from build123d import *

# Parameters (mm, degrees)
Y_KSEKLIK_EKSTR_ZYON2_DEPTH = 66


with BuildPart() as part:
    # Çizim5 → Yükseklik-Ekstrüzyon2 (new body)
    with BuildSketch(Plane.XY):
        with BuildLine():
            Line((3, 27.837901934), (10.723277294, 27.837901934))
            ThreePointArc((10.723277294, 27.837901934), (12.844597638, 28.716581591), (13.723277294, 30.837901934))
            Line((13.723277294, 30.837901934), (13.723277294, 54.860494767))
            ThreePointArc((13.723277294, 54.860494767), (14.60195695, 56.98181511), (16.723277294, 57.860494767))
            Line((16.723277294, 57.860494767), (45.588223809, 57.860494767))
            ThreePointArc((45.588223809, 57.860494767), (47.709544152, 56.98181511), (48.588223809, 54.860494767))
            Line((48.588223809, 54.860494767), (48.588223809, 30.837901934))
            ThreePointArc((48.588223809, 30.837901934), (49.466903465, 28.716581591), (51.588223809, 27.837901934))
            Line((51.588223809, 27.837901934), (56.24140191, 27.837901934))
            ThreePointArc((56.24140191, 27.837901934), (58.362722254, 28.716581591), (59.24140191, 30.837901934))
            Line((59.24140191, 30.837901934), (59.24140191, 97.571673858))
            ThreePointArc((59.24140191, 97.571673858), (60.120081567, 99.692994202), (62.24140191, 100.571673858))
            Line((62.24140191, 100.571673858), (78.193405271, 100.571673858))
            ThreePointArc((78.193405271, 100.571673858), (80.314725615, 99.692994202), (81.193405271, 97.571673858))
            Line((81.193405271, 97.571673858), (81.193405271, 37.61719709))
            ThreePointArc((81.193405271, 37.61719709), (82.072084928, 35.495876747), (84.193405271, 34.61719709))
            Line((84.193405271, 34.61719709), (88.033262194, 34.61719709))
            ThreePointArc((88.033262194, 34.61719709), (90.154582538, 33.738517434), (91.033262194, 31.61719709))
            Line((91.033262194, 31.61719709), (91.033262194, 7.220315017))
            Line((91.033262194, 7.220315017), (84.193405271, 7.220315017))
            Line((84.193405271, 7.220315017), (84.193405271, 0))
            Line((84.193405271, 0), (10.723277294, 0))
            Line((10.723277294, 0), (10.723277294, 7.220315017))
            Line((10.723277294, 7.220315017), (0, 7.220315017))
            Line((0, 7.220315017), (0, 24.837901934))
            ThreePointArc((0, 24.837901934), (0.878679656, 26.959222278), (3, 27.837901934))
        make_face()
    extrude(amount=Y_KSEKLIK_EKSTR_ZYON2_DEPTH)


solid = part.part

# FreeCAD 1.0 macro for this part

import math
import FreeCAD as App
import Part
import Sketcher

doc = App.newDocument("Part")
body = doc.addObject("PartDesign::Body", "Body")

# Sketch on XY plane
sketch1 = doc.addObject("Sketcher::SketchObject", "Sketch")
body.addObject(sketch1)
sketch1.AttachmentSupport = (doc.XY_Plane, [""])
sketch1.MapMode = "FlatFace"
sketch1.addGeometry([
    Part.LineSegment(App.Vector(10.723277, 27.837902, 0), App.Vector(3, 27.837902, 0)),  # 0
    Part.ArcOfCircle(Part.Circle(App.Vector(3, 24.837902, 0), App.Vector(0, 0, 1), 3), math.radians(90), math.radians(180)),  # 1
    Part.LineSegment(App.Vector(0, 24.837902, 0), App.Vector(0, 7.220315, 0)),  # 2
    Part.LineSegment(App.Vector(0, 7.220315, 0), App.Vector(10.723277, 7.220315, 0)),  # 3
    Part.LineSegment(App.Vector(10.723277, 7.220315, 0), App.Vector(10.723277, 0, 0)),  # 4
    Part.LineSegment(App.Vector(10.723277, 0, 0), App.Vector(84.193405, 0, 0)),  # 5
    Part.LineSegment(App.Vector(84.193405, 0, 0), App.Vector(84.193405, 7.220315, 0)),  # 6
    Part.LineSegment(App.Vector(84.193405, 7.220315, 0), App.Vector(91.033262, 7.220315, 0)),  # 7
    Part.LineSegment(App.Vector(91.033262, 7.220315, 0), App.Vector(91.033262, 31.617197, 0)),  # 8
    Part.ArcOfCircle(Part.Circle(App.Vector(88.033262, 31.617197, 0), App.Vector(0, 0, 1), 3), math.radians(0), math.radians(90)),  # 9
    Part.LineSegment(App.Vector(88.033262, 34.617197, 0), App.Vector(84.193405, 34.617197, 0)),  # 10
    Part.ArcOfCircle(Part.Circle(App.Vector(84.193405, 37.617197, 0), App.Vector(0, 0, 1), 3), math.radians(-180), math.radians(-90)),  # 11
    Part.LineSegment(App.Vector(81.193405, 37.617197, 0), App.Vector(81.193405, 97.571674, 0)),  # 12
    Part.ArcOfCircle(Part.Circle(App.Vector(78.193405, 97.571674, 0), App.Vector(0, 0, 1), 3), math.radians(0), math.radians(90)),  # 13
    Part.LineSegment(App.Vector(78.193405, 100.571674, 0), App.Vector(62.241402, 100.571674, 0)),  # 14
    Part.ArcOfCircle(Part.Circle(App.Vector(62.241402, 97.571674, 0), App.Vector(0, 0, 1), 3), math.radians(90), math.radians(180)),  # 15
    Part.LineSegment(App.Vector(59.241402, 97.571674, 0), App.Vector(59.241402, 30.837902, 0)),  # 16
    Part.ArcOfCircle(Part.Circle(App.Vector(56.241402, 30.837902, 0), App.Vector(0, 0, 1), 3), math.radians(-90), math.radians(0)),  # 17
    Part.LineSegment(App.Vector(56.241402, 27.837902, 0), App.Vector(51.588224, 27.837902, 0)),  # 18
    Part.ArcOfCircle(Part.Circle(App.Vector(51.588224, 30.837902, 0), App.Vector(0, 0, 1), 3), math.radians(180), math.radians(270)),  # 19
    Part.LineSegment(App.Vector(48.588224, 30.837902, 0), App.Vector(48.588224, 54.860495, 0)),  # 20
    Part.ArcOfCircle(Part.Circle(App.Vector(45.588224, 54.860495, 0), App.Vector(0, 0, 1), 3), math.radians(0), math.radians(90)),  # 21
    Part.LineSegment(App.Vector(45.588224, 57.860495, 0), App.Vector(16.723277, 57.860495, 0)),  # 22
    Part.ArcOfCircle(Part.Circle(App.Vector(16.723277, 54.860495, 0), App.Vector(0, 0, 1), 3), math.radians(90), math.radians(180)),  # 23
    Part.LineSegment(App.Vector(13.723277, 54.860495, 0), App.Vector(13.723277, 30.837902, 0)),  # 24
    Part.ArcOfCircle(Part.Circle(App.Vector(10.723277, 30.837902, 0), App.Vector(0, 0, 1), 3), math.radians(-90), math.radians(0)),  # 25
], False)
sketch1.addConstraint([
    Sketcher.Constraint("Tangent", 0, 2, 1, 1),
    Sketcher.Constraint("Tangent", 1, 2, 2, 1),
    Sketcher.Constraint("Coincident", 2, 2, 3, 1),
    Sketcher.Constraint("Coincident", 3, 2, 4, 1),
    Sketcher.Constraint("Coincident", 4, 2, 5, 1),
    Sketcher.Constraint("Coincident", 5, 2, 6, 1),
    Sketcher.Constraint("Coincident", 6, 2, 7, 1),
    Sketcher.Constraint("Coincident", 7, 2, 8, 1),
    Sketcher.Constraint("Tangent", 8, 2, 9, 1),
    Sketcher.Constraint("Tangent", 9, 2, 10, 1),
    Sketcher.Constraint("Tangent", 10, 2, 11, 2),
    Sketcher.Constraint("Tangent", 11, 1, 12, 1),
    Sketcher.Constraint("Tangent", 12, 2, 13, 1),
    Sketcher.Constraint("Tangent", 13, 2, 14, 1),
    Sketcher.Constraint("Tangent", 14, 2, 15, 1),
    Sketcher.Constraint("Tangent", 15, 2, 16, 1),
    Sketcher.Constraint("Tangent", 16, 2, 17, 2),
    Sketcher.Constraint("Tangent", 17, 1, 18, 1),
    Sketcher.Constraint("Tangent", 18, 2, 19, 2),
    Sketcher.Constraint("Tangent", 19, 1, 20, 1),
    Sketcher.Constraint("Tangent", 20, 2, 21, 1),
    Sketcher.Constraint("Tangent", 21, 2, 22, 1),
    Sketcher.Constraint("Tangent", 22, 2, 23, 1),
    Sketcher.Constraint("Tangent", 23, 2, 24, 1),
    Sketcher.Constraint("Tangent", 24, 2, 25, 2),
    Sketcher.Constraint("Tangent", 25, 1, 0, 1),
    Sketcher.Constraint("Horizontal", 0),
    Sketcher.Constraint("Vertical", 2),
    Sketcher.Constraint("Horizontal", 3),
    Sketcher.Constraint("Vertical", 4),
    Sketcher.Constraint("Horizontal", 5),
    Sketcher.Constraint("Vertical", 6),
    Sketcher.Constraint("Horizontal", 7),
    Sketcher.Constraint("Vertical", 8),
    Sketcher.Constraint("Horizontal", 10),
    Sketcher.Constraint("Vertical", 12),
    Sketcher.Constraint("Horizontal", 14),
    Sketcher.Constraint("Vertical", 16),
    Sketcher.Constraint("Horizontal", 18),
    Sketcher.Constraint("Vertical", 20),
    Sketcher.Constraint("Horizontal", 22),
    Sketcher.Constraint("Vertical", 24),
    Sketcher.Constraint("Equal", 1, 9),
    Sketcher.Constraint("Equal", 9, 11),
    Sketcher.Constraint("Equal", 11, 13),
    Sketcher.Constraint("Equal", 13, 15),
    Sketcher.Constraint("Equal", 15, 17),
    Sketcher.Constraint("Equal", 17, 19),
    Sketcher.Constraint("Equal", 19, 21),
    Sketcher.Constraint("Equal", 21, 23),
    Sketcher.Constraint("Equal", 23, 25),
    Sketcher.Constraint("PointOnObject", 1, 2, -2),
    Sketcher.Constraint("PointOnObject", 4, 2, -1),
    Sketcher.Constraint("Horizontal", 19, 3, 25, 3),
    Sketcher.Constraint("Horizontal", 3, 2, 6, 2),
    Sketcher.Constraint("Vertical", 25, 3, 3, 2),
    Sketcher.Constraint("Vertical", 11, 3, 5, 2),
    Sketcher.Constraint("Radius", 1, 3.0),
    Sketcher.Constraint("DistanceX", 18, 2, 18, 1, 4.653178),
    Sketcher.Constraint("DistanceY", 16, 2, 16, 1, 66.733772),
    Sketcher.Constraint("DistanceY", -1, 1, 1, 3, 24.837902),
    Sketcher.Constraint("DistanceX", -1, 1, 15, 3, 62.241402),
    Sketcher.Constraint("DistanceX", 0, 2, 0, 1, 7.723277),
    Sketcher.Constraint("DistanceX", 5, 1, 5, 2, 73.470128),
    Sketcher.Constraint("DistanceX", 7, 1, 7, 2, 6.839857),
    Sketcher.Constraint("DistanceY", 2, 2, 2, 1, 17.617587),
    Sketcher.Constraint("DistanceY", 8, 1, 8, 2, 24.396882),
    Sketcher.Constraint("DistanceY", 20, 1, 20, 2, 24.022593),
])
pad1 = doc.addObject("PartDesign::Pad", "Pad")
body.addObject(pad1)
pad1.Profile = sketch1
pad1.Length = 66

doc.recompute()
